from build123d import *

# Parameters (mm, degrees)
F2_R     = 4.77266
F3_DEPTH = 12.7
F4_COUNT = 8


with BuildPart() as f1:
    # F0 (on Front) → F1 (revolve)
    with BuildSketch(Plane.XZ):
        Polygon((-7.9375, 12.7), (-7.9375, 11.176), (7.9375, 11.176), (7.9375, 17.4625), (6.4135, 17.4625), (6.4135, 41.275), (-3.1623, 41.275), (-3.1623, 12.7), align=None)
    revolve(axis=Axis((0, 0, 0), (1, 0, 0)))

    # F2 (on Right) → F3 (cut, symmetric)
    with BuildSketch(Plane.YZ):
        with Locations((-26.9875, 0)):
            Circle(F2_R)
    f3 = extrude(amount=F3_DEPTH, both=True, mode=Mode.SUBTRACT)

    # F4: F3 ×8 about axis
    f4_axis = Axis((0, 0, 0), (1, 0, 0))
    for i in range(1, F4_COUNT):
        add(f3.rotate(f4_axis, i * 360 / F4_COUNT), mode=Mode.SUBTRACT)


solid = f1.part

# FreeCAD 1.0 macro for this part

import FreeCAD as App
import Part
import Sketcher
Q = App.Units.Quantity

doc = App.newDocument("Part")
params = doc.addObject("Spreadsheet::Sheet", "Params")
for row, (alias, value) in enumerate([
    ("sketch1_width", "0.06 in"),
    ("sketch1_width2", "0.625 in"),
    ("sketch1_width3", "0.377 in"),
    ("sketch1_height", "0.9375 in"),
    ("sketch1_height2", "1.125 in"),
    ("revolution_angle", "360 deg"),
    ("pocket1_length", "1 in"),
], start=1):
    params.set(f"A{row}", alias)
    params.set(f"B{row}", "=" + value)
    params.setAlias(f"B{row}", alias)

body = doc.addObject("PartDesign::Body", "Body")

# Sketch on XZ plane
sketch1 = body.newObject("Sketcher::SketchObject", "Sketch")
sketch1.AttachmentSupport = (doc.getObject("XZ_Plane"), [""])
sketch1.MapMode = "FlatFace"
sketch1.addGeometry([
    Part.LineSegment(App.Vector(-7.9, 12.7, 0), App.Vector(-7.9, 11.2, 0)),  # 0
    Part.LineSegment(App.Vector(-7.9, 11.2, 0), App.Vector(7.9, 11.2, 0)),  # 1
    Part.LineSegment(App.Vector(7.9, 11.2, 0), App.Vector(7.9, 17.5, 0)),  # 2
    Part.LineSegment(App.Vector(7.9, 17.5, 0), App.Vector(6.4, 17.5, 0)),  # 3
    Part.LineSegment(App.Vector(6.4, 17.5, 0), App.Vector(6.4, 41.3, 0)),  # 4
    Part.LineSegment(App.Vector(6.4, 41.3, 0), App.Vector(-3.2, 41.3, 0)),  # 5
    Part.LineSegment(App.Vector(-3.2, 41.3, 0), App.Vector(-3.2, 12.7, 0)),  # 6
    Part.LineSegment(App.Vector(-3.2, 12.7, 0), App.Vector(-7.9, 12.7, 0)),  # 7
], False)
sketch1.addConstraint([
    Sketcher.Constraint("Coincident", 0, 2, 1, 1),
    Sketcher.Constraint("Coincident", 1, 2, 2, 1),
    Sketcher.Constraint("Coincident", 2, 2, 3, 1),
    Sketcher.Constraint("Coincident", 3, 2, 4, 1),
    Sketcher.Constraint("Coincident", 4, 2, 5, 1),
    Sketcher.Constraint("Coincident", 5, 2, 6, 1),
    Sketcher.Constraint("Coincident", 6, 2, 7, 1),
    Sketcher.Constraint("Coincident", 7, 2, 0, 1),
    Sketcher.Constraint("Vertical", 0),
    Sketcher.Constraint("Horizontal", 1),
    Sketcher.Constraint("Vertical", 2),
    Sketcher.Constraint("Horizontal", 3),
    Sketcher.Constraint("Vertical", 4),
    Sketcher.Constraint("Horizontal", 5),
    Sketcher.Constraint("Vertical", 6),
    Sketcher.Constraint("Horizontal", 7),
    Sketcher.Constraint("Equal", 3, 0),
    Sketcher.Constraint("DistanceX", 3, 2, 3, 1, Q("0.06 in")),
    Sketcher.Constraint("DistanceY", -1, 1, 6, 2, Q("0.5 in")),
    Sketcher.Constraint("DistanceX", 1, 1, 1, 2, Q("0.625 in")),
    Sketcher.Constraint("DistanceX", 5, 2, 5, 1, Q("0.377 in")),
    Sketcher.Constraint("DistanceY", 4, 1, 4, 2, Q("0.9375 in")),
    Sketcher.Constraint("DistanceY", 6, 2, 6, 1, Q("1.125 in")),
    Sketcher.Constraint("DistanceX", 0, 2, -1, 1, Q("0.3125 in")),
])
sketch1.setExpression("Constraints[17]", "Params.sketch1_width")
sketch1.setExpression("Constraints[19]", "Params.sketch1_width2")
sketch1.setExpression("Constraints[20]", "Params.sketch1_width3")
sketch1.setExpression("Constraints[21]", "Params.sketch1_height")
sketch1.setExpression("Constraints[22]", "Params.sketch1_height2")
revolution = body.newObject("PartDesign::Revolution", "Revolution")
revolution.Profile = sketch1
revolution.ReferenceAxis = (sketch1, ["H_Axis"])
revolution.setExpression("Angle", "Params.revolution_angle")

# Sketch on YZ plane
sketch2 = body.newObject("Sketcher::SketchObject", "Sketch001")
sketch2.AttachmentSupport = (doc.getObject("YZ_Plane"), [""])
sketch2.MapMode = "FlatFace"
sketch2.addGeometry(Part.Circle(App.Vector(-27, 0, 0), App.Vector(0, 0, 1), 4.8), False)
sketch2.addConstraint([
    Sketcher.Constraint("PointOnObject", 0, 3, -1),
    Sketcher.Constraint("Diameter", 0, Q("0.3758 in")),
    Sketcher.Constraint("DistanceX", 0, 3, -1, 1, Q("1.0625 in")),
])
pocket1 = body.newObject("PartDesign::Pocket", "Pocket")
pocket1.Profile = sketch2
pocket1.setExpression("Length", "Params.pocket1_length")
pocket1.Midplane = True
doc.recompute()

polarpattern = body.newObject("PartDesign::PolarPattern", "PolarPattern")
polarpattern.Originals = [pocket1]
polarpattern.Axis = (doc.getObject("X_Axis"), [""])
polarpattern.Angle = 360
polarpattern.Occurrences = 8
body.Tip = polarpattern

doc.recompute()
